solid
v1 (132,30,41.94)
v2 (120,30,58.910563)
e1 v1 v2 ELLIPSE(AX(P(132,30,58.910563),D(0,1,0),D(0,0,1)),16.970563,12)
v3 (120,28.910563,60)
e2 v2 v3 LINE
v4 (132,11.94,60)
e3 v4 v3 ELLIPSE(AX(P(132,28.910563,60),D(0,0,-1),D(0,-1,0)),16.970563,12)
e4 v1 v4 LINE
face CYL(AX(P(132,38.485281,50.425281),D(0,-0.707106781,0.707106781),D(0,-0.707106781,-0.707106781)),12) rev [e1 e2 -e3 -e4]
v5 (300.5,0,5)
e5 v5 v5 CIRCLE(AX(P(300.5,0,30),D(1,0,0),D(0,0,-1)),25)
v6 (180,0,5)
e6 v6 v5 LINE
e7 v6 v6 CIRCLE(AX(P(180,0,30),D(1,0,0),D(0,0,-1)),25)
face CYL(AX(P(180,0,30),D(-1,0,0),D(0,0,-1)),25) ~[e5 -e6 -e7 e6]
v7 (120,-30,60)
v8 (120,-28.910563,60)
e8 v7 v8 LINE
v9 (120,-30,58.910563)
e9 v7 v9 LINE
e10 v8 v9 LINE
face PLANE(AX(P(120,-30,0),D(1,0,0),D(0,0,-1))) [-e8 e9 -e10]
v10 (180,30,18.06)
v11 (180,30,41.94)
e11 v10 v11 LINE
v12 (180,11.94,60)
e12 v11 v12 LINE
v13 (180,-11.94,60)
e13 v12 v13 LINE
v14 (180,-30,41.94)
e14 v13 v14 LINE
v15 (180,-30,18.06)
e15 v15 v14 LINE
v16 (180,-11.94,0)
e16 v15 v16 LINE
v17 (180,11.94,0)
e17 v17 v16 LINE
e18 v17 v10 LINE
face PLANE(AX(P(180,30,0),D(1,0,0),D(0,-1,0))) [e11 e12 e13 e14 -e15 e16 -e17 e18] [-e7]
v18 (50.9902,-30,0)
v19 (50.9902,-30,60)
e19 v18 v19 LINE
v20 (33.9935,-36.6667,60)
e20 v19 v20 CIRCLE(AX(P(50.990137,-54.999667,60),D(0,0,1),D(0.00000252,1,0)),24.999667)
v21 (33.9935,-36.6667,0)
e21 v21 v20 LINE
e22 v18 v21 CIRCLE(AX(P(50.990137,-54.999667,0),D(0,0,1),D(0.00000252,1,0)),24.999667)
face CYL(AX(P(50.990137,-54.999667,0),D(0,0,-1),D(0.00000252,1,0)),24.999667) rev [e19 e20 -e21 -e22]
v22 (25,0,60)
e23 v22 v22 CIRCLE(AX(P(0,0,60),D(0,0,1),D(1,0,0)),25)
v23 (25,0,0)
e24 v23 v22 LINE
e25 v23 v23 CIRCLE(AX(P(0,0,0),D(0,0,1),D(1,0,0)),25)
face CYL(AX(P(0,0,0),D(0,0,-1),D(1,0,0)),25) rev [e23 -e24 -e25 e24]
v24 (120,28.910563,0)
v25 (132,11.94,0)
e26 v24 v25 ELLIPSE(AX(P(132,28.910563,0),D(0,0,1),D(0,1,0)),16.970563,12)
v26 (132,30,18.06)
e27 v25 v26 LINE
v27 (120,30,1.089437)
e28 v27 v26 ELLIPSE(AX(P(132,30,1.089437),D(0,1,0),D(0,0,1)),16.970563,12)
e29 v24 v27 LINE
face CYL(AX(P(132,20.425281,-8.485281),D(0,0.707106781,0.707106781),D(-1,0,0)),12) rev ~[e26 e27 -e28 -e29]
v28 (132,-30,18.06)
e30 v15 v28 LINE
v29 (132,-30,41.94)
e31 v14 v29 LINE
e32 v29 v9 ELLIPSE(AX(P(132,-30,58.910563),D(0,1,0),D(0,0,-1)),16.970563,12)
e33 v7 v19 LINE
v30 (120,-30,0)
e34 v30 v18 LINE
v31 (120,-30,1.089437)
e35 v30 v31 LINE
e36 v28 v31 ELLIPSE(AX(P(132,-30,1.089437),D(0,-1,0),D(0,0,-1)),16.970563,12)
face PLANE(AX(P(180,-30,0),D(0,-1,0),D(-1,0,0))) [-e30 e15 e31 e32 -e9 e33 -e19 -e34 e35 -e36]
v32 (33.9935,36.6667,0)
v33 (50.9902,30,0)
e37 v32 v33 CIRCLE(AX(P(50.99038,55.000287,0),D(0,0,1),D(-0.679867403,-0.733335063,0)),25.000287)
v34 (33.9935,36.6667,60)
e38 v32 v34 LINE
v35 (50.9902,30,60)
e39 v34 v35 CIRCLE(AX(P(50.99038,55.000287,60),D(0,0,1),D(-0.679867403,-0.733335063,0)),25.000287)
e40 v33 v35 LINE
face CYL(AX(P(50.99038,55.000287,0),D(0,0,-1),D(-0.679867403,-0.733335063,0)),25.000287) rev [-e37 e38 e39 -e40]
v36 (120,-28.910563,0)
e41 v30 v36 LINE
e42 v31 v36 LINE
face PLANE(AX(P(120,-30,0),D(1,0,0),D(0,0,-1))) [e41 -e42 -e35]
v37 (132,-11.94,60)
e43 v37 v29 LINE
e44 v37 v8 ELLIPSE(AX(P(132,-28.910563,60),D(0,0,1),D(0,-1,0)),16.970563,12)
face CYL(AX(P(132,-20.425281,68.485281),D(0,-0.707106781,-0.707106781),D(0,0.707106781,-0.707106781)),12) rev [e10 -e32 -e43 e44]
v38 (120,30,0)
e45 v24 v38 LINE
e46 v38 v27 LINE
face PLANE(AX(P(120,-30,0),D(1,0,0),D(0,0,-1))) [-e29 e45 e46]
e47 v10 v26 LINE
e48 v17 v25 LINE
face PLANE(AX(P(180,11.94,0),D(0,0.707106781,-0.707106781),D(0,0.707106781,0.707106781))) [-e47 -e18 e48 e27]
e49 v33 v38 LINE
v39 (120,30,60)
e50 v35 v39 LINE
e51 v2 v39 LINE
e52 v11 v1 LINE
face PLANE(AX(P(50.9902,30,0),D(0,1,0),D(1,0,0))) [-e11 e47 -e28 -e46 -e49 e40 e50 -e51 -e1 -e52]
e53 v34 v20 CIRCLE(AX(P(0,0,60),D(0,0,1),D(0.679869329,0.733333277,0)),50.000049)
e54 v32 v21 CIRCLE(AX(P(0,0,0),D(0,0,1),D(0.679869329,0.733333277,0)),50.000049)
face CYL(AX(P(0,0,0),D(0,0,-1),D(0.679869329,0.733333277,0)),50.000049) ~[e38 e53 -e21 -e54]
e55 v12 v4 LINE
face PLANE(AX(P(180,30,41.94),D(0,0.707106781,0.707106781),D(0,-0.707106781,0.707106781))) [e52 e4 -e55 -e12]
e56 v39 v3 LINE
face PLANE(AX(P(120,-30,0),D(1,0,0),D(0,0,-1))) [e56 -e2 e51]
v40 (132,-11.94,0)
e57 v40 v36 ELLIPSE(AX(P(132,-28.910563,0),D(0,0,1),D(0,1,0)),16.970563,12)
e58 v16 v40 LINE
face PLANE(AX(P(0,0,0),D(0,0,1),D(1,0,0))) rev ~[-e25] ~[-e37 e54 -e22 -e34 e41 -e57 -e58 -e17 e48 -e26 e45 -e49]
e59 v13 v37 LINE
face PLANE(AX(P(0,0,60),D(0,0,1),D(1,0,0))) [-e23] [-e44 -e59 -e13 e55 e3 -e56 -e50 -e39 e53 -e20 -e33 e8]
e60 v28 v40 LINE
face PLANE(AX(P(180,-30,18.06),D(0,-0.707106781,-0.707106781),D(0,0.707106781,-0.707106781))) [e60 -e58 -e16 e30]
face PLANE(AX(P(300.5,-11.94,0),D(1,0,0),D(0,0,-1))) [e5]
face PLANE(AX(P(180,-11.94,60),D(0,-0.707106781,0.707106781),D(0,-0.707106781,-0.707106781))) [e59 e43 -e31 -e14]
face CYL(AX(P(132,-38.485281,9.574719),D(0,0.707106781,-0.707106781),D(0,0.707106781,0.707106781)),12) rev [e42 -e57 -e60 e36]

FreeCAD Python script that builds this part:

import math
import FreeCAD as App
import Part
import Sketcher
from FreeCAD import Vector


def edges_at(feature, points):
    """Names of the edges that pass closest to the given points."""
    edges = feature.Shape.Edges
    near = lambda p: min(range(len(edges)), key=lambda i: edges[i].distToShape(Part.Vertex(*p))[0])
    return sorted({f"Edge{near(p) + 1}" for p in points})


def add_polygon(sketch, points):
    """Adds a closed chain of lines whose ends are joined by coincident constraints."""
    first, n = sketch.GeometryCount, len(points)
    for a, b in zip(points, points[1:] + points[:1]):
        sketch.addGeometry(Part.LineSegment(App.Vector(*a, 0), App.Vector(*b, 0)), False)
    for i in range(n):
        sketch.addConstraint(Sketcher.Constraint("Coincident", first + i, 2, first + (i + 1) % n, 1))

doc = App.newDocument("Part")
params = doc.addObject("Spreadsheet::Sheet", "Params")
for row, (alias, value) in enumerate([
    ("sketch1_diameter", "50 mm"),
    ("sketch1_radius", "50 mm"),
    ("sketch1_height", "60 mm"),
    ("pad1_length", "60 mm"),
    ("sketch2_width", "18.06 mm"),
    ("pocket1_length", "60 mm"),
    ("sketch3_diameter", "50 mm"),
    ("pad2_length", "120.5 mm"),
    ("fillet_radius", "12 mm"),
], start=1):
    params.set(f"A{row}", alias)
    params.set(f"B{row}", "=" + value)
    params.setAlias(f"B{row}", alias)

body = doc.addObject("PartDesign::Body", "Body")

# Sketch on XY plane
sketch1 = body.newObject("Sketcher::SketchObject", "Sketch")
sketch1.AttachmentSupport = (doc.getObject("XY_Plane"), [""])
sketch1.MapMode = "FlatFace"
sketch1.addGeometry(Part.ArcOfCircle(Part.Circle(Vector(50.9902, 55, 0), Vector(0, 0, 1), 24.999954), math.radians(-132.833427), math.radians(-90)), False)
sketch1.addGeometry(Part.ArcOfCircle(Part.Circle(Vector(0, 0, 0), Vector(0, 0, 1), 50.000049), math.radians(47.166567), math.radians(312.833433)), False)
sketch1.addGeometry(Part.ArcOfCircle(Part.Circle(Vector(50.9902, -55, 0), Vector(0, 0, 1), 25), math.radians(90), math.radians(132.833427)), False)
sketch1.addGeometry(Part.LineSegment(Vector(50.9902, -30, 0), Vector(180, -30, 0)), False)
sketch1.addGeometry(Part.LineSegment(Vector(180, -30, 0), Vector(180, 30, 0)), False)
sketch1.addGeometry(Part.LineSegment(Vector(180, 30, 0), Vector(50.9902, 30, 0)), False)
sketch1.addGeometry(Part.Circle(Vector(0, 0, 0), Vector(0, 0, 1), 25), False)
sketch1.addConstraint(Sketcher.Constraint("Tangent", 0, 1, 1, 1))
sketch1.addConstraint(Sketcher.Constraint("Tangent", 1, 2, 2, 2))
sketch1.addConstraint(Sketcher.Constraint("Tangent", 2, 1, 3, 1))
sketch1.addConstraint(Sketcher.Constraint("Coincident", 3, 2, 4, 1))
sketch1.addConstraint(Sketcher.Constraint("Coincident", 4, 2, 5, 1))
sketch1.addConstraint(Sketcher.Constraint("Tangent", 5, 2, 0, 2))
sketch1.addConstraint(Sketcher.Constraint("Horizontal", 3))
sketch1.addConstraint(Sketcher.Constraint("Vertical", 4))
sketch1.addConstraint(Sketcher.Constraint("Horizontal", 5))
sketch1.addConstraint(Sketcher.Constraint("Coincident", 1, 3, -1, 1))
sketch1.addConstraint(Sketcher.Constraint("Coincident", 6, 3, -1, 1))
sketch1.addConstraint(Sketcher.Constraint("Equal", 0, 2))
sketch1.addConstraint(Sketcher.Constraint("Equal", 2, 6))
sketch1.addConstraint(Sketcher.Constraint("Vertical", 0, 3, 2, 3))
sketch1.addConstraint(Sketcher.Constraint("Diameter", 6, 50.0))
sketch1.addConstraint(Sketcher.Constraint("Radius", 1, 50.0))
sketch1.addConstraint(Sketcher.Constraint("DistanceY", 4, 1, 4, 2, 60.0))
sketch1.addConstraint(Sketcher.Constraint("DistanceX", -1, 1, 3, 2, 180.0))
sketch1.setExpression("Constraints[14]", "Params.sketch1_diameter")
sketch1.setExpression("Constraints[15]", "Params.sketch1_radius")
sketch1.setExpression("Constraints[16]", "Params.sketch1_height")
pad1 = body.newObject("PartDesign::Pad", "Pad")
pad1.Profile = sketch1
pad1.setExpression("Length", "Params.pad1_length")

# Sketch on YZ plane
sketch2 = body.newObject("Sketcher::SketchObject", "Sketch001")
sketch2.AttachmentSupport = (doc.getObject("YZ_Plane"), [""])
sketch2.MapMode = "FlatFace"
sketch2.AttachmentOffset = App.Placement(Vector(0, 0, 180), App.Rotation())
add_polygon(sketch2, [(11.94, 0), (30, 0), (30, 18.06)])  # lines 0-2
add_polygon(sketch2, [(-30, 0), (-11.94, 0), (-30, 18.06)])  # lines 3-5
add_polygon(sketch2, [(11.94, 60), (30, 41.94), (30, 60)])  # lines 6-8
add_polygon(sketch2, [(-30, 41.94), (-11.94, 60), (-30, 60)])  # lines 9-11
sketch2.addConstraint(Sketcher.Constraint("Horizontal", 0))
sketch2.addConstraint(Sketcher.Constraint("Vertical", 1))
sketch2.addConstraint(Sketcher.Constraint("Horizontal", 3))
sketch2.addConstraint(Sketcher.Constraint("Vertical", 5))
sketch2.addConstraint(Sketcher.Constraint("Vertical", 7))
sketch2.addConstraint(Sketcher.Constraint("Horizontal", 8))
sketch2.addConstraint(Sketcher.Constraint("Horizontal", 10))
sketch2.addConstraint(Sketcher.Constraint("Vertical", 11))
sketch2.addConstraint(Sketcher.Constraint("Symmetric", 2, 2, 3, 2, -1, 1))
sketch2.addConstraint(Sketcher.Constraint("Symmetric", 1, 2, 4, 2, -2))
sketch2.addConstraint(Sketcher.Constraint("Symmetric", 8, 2, 9, 2, -2))
sketch2.addConstraint(Sketcher.Constraint("Symmetric", 6, 2, 11, 2, -2))
sketch2.addConstraint(Sketcher.Constraint("PointOnObject", 0, 2, -1))
sketch2.addConstraint(Sketcher.Constraint("Perpendicular", 2, 4))
sketch2.addConstraint(Sketcher.Constraint("Parallel", 4, 6))
sketch2.addConstraint(Sketcher.Constraint("Vertical", 1, 2, 6, 2))
sketch2.addConstraint(Sketcher.Constraint("Vertical", 2, 2, 8, 2))
sketch2.addConstraint(Sketcher.Constraint("DistanceX", 0, 1, 0, 2, 18.06))
sketch2.addConstraint(Sketcher.Constraint("DistanceX", -1, 1, 0, 2, 30.0))
sketch2.addConstraint(Sketcher.Constraint("DistanceY", -1, 1, 7, 2, 60.0))
sketch2.setExpression("Constraints[29]", "Params.sketch2_width")
pocket1 = body.newObject("PartDesign::Pocket", "Pocket")
pocket1.Profile = sketch2
pocket1.setExpression("Length", "Params.pocket1_length")

# Sketch on YZ plane
sketch3 = body.newObject("Sketcher::SketchObject", "Sketch002")
sketch3.AttachmentSupport = (doc.getObject("YZ_Plane"), [""])
sketch3.MapMode = "FlatFace"
sketch3.AttachmentOffset = App.Placement(Vector(0, 0, 180), App.Rotation())
sketch3.addGeometry(Part.Circle(Vector(0, 30, 0), Vector(0, 0, 1), 25), False)
sketch3.addConstraint(Sketcher.Constraint("PointOnObject", 0, 3, -2))
sketch3.addConstraint(Sketcher.Constraint("Diameter", 0, 50.0))
sketch3.addConstraint(Sketcher.Constraint("DistanceY", -1, 1, 0, 3, 30.0))
sketch3.setExpression("Constraints[1]", "Params.sketch3_diameter")
pad2 = body.newObject("PartDesign::Pad", "Pad001")
pad2.Profile = sketch3
pad2.setExpression("Length", "Params.pad2_length")
doc.recompute()

fillet = body.newObject("PartDesign::Fillet", "Fillet")
fillet.Base = (pad2, edges_at(pad2, [
    (120, 20.97, 50.97),
    (120, 20.97, 9.03),
    (120, -20.97, 9.03),
    (120, -20.97, 50.97),
]))
fillet.setExpression("Radius", "Params.fillet_radius")

doc.recompute()
